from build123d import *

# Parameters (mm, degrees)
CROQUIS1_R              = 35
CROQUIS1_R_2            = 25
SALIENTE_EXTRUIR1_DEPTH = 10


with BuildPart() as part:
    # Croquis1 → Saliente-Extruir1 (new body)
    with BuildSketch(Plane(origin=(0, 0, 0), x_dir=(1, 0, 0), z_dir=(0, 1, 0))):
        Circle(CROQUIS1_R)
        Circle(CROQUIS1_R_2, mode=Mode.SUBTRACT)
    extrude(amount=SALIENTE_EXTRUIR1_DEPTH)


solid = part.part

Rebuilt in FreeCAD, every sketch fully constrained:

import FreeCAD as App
import Part
import Sketcher
from FreeCAD import Vector
Q = App.Units.Quantity

doc = App.newDocument("Part")
body = doc.addObject("PartDesign::Body", "Body")

# Sketch on XZ plane
sketch1 = body.newObject("Sketcher::SketchObject", "Sketch")
sketch1.AttachmentSupport = (doc.getObject("XZ_Plane"), [""])
sketch1.MapMode = "FlatFace"
sketch1.addGeometry([
    Part.Circle(Vector(0, 0, 0), Vector(0, 0, 1), 35),
    Part.Circle(Vector(0, 0, 0), Vector(0, 0, 1), 25),
], False)
sketch1.addConstraint([
    Sketcher.Constraint("Coincident", 0, 3, -1, 1),
    Sketcher.Constraint("Coincident", 1, 3, -1, 1),
    Sketcher.Constraint("Diameter", 0, Q("70 mm")),
    Sketcher.Constraint("Diameter", 1, Q("50 mm")),
])
pad1 = body.newObject("PartDesign::Pad", "Pad")
pad1.Profile = sketch1
pad1.Length = 10
pad1.Reversed = True

doc.recompute()
